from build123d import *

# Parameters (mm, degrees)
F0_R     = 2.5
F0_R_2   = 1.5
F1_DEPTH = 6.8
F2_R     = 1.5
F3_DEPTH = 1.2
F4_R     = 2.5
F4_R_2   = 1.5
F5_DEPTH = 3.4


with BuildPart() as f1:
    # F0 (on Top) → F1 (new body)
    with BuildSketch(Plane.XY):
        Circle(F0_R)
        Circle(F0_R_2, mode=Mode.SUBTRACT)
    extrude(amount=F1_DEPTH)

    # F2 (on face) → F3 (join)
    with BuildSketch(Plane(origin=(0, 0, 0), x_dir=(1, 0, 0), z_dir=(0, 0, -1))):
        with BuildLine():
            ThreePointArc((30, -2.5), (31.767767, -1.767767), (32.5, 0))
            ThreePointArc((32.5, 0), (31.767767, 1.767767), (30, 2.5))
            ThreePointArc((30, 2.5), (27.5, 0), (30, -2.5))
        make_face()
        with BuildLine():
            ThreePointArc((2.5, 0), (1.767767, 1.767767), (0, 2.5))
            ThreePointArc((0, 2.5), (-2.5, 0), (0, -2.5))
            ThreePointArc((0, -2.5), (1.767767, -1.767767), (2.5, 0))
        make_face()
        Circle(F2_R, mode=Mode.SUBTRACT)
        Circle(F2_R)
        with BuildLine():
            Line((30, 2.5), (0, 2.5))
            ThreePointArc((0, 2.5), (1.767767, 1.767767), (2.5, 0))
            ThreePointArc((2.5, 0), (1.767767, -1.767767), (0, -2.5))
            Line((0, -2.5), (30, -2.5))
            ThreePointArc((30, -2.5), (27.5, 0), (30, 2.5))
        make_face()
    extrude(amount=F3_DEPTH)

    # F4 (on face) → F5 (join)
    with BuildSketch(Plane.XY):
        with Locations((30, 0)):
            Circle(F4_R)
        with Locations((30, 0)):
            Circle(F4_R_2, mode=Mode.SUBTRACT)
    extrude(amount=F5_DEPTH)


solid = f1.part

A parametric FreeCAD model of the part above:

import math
import FreeCAD as App
import Part
import Sketcher

V = App.Vector
Q = App.Units.Quantity

doc = App.newDocument("Part")
body = doc.addObject("PartDesign::Body", "Body")

# Sketch on XY plane
sketch1 = doc.addObject("Sketcher::SketchObject", "Sketch")
body.addObject(sketch1)
sketch1.AttachmentSupport = (doc.XY_Plane, [""])
sketch1.MapMode = "FlatFace"
sketch1.addGeometry(Part.Circle(V(0, 0, 0), V(0, 0, 1), 2.5), False)
sketch1.addGeometry(Part.Circle(V(0, 0, 0), V(0, 0, 1), 1.5), False)
sketch1.addConstraint(Sketcher.Constraint("Coincident", 0, 3, -1, 1))
sketch1.addConstraint(Sketcher.Constraint("Coincident", 1, 3, -1, 1))
sketch1.addConstraint(Sketcher.Constraint("Diameter", 0, Q("5 mm")))
sketch1.addConstraint(Sketcher.Constraint("Diameter", 1, Q("3 mm")))
pad1 = doc.addObject("PartDesign::Pad", "Pad")
body.addObject(pad1)
pad1.Profile = sketch1
pad1.Length = 6.8

# Sketch on XY plane
sketch2 = doc.addObject("Sketcher::SketchObject", "Sketch001")
body.addObject(sketch2)
sketch2.AttachmentSupport = (doc.XY_Plane, [""])
sketch2.MapMode = "FlatFace"
sketch2.addGeometry(Part.ArcOfCircle(Part.Circle(V(30, 0, 0), V(0, 0, 1), 2.5), math.radians(0), math.radians(90)), False)
sketch2.addGeometry(Part.ArcOfCircle(Part.Circle(V(30, 0, 0), V(0, 0, 1), 2.5), math.radians(-90), math.radians(0)), False)
sketch2.addGeometry(Part.LineSegment(V(30, -2.5, 0), V(0, -2.5, 0)), False)
sketch2.addGeometry(Part.ArcOfCircle(Part.Circle(V(0, 0, 0), V(0, 0, 1), 2.5), math.radians(90), math.radians(270)), False)
sketch2.addGeometry(Part.LineSegment(V(0, 2.5, 0), V(30, 2.5, 0)), False)
sketch2.addConstraint(Sketcher.Constraint("Tangent", 0, 1, 1, 2))
sketch2.addConstraint(Sketcher.Constraint("Tangent", 1, 1, 2, 1))
sketch2.addConstraint(Sketcher.Constraint("Tangent", 2, 2, 3, 2))
sketch2.addConstraint(Sketcher.Constraint("Tangent", 3, 1, 4, 1))
sketch2.addConstraint(Sketcher.Constraint("Tangent", 4, 2, 0, 2))
sketch2.addConstraint(Sketcher.Constraint("Horizontal", 2))
sketch2.addConstraint(Sketcher.Constraint("Horizontal", 4))
sketch2.addConstraint(Sketcher.Constraint("Coincident", 3, 3, -1, 1))
sketch2.addConstraint(Sketcher.Constraint("Equal", 0, 1))
sketch2.addConstraint(Sketcher.Constraint("PointOnObject", 0, 1, -1))
sketch2.addConstraint(Sketcher.Constraint("Radius", 0, Q("2.5 mm")))
sketch2.addConstraint(Sketcher.Constraint("DistanceX", 2, 2, 2, 1, Q("30 mm")))
pad2 = doc.addObject("PartDesign::Pad", "Pad001")
body.addObject(pad2)
pad2.Profile = sketch2
pad2.Length = 1.2
pad2.Reversed = True

# Sketch on XY plane
sketch3 = doc.addObject("Sketcher::SketchObject", "Sketch002")
body.addObject(sketch3)
sketch3.AttachmentSupport = (doc.XY_Plane, [""])
sketch3.MapMode = "FlatFace"
sketch3.addGeometry(Part.Circle(V(30, 0, 0), V(0, 0, 1), 2.5), False)
sketch3.addGeometry(Part.Circle(V(30, 0, 0), V(0, 0, 1), 1.5), False)
sketch3.addConstraint(Sketcher.Constraint("Coincident", 1, 3, 0, 3))
sketch3.addConstraint(Sketcher.Constraint("PointOnObject", 0, 3, -1))
sketch3.addConstraint(Sketcher.Constraint("Diameter", 0, Q("5 mm")))
sketch3.addConstraint(Sketcher.Constraint("Diameter", 1, Q("3 mm")))
sketch3.addConstraint(Sketcher.Constraint("DistanceX", -1, 1, 0, 3, Q("30 mm")))
pad3 = doc.addObject("PartDesign::Pad", "Pad002")
body.addObject(pad3)
pad3.Profile = sketch3
pad3.Length = 3.4

doc.recompute()
